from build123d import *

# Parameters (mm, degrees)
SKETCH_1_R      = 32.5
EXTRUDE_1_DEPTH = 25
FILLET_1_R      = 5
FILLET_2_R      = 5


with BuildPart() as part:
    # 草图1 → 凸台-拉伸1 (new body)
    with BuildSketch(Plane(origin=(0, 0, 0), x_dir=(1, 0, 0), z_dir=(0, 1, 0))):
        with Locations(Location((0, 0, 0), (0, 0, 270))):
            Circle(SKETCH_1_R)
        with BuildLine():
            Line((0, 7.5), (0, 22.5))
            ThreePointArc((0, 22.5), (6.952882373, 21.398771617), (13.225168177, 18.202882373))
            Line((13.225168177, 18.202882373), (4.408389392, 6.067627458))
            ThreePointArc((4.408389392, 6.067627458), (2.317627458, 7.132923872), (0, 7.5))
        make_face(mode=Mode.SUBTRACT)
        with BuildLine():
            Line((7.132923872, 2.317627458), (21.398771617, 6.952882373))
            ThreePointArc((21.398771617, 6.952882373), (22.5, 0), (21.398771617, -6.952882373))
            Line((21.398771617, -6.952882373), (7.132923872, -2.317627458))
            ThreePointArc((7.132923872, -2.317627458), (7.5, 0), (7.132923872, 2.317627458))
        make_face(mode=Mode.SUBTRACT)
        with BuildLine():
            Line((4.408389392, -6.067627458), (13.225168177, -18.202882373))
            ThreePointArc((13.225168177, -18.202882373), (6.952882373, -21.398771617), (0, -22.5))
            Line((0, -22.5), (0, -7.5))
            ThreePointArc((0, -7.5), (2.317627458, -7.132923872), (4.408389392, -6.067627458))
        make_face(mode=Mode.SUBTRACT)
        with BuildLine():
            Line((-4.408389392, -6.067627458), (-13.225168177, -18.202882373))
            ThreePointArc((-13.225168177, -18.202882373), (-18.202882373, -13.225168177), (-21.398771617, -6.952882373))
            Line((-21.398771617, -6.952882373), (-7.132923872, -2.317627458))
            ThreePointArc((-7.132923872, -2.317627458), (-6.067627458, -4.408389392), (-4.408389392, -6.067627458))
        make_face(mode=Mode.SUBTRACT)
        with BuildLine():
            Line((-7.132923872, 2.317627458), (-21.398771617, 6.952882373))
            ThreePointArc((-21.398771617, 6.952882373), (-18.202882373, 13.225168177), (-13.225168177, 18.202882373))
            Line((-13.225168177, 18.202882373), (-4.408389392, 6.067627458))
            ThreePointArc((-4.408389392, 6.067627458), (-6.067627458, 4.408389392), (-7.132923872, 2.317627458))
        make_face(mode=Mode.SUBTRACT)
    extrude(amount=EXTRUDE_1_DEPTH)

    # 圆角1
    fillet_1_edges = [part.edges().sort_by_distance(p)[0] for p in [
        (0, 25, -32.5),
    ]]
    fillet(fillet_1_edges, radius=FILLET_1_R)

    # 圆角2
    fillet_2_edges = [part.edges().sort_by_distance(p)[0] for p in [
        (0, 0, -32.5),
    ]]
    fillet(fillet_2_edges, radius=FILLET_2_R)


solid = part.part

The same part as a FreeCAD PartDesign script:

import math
import FreeCAD as App
import Part
import Sketcher
from FreeCAD import Vector
Q = App.Units.Quantity


def edges_at(feature, points):
    """Names of the edges that pass closest to the given points."""
    edges = feature.Shape.Edges
    near = lambda p: min(range(len(edges)), key=lambda i: edges[i].distToShape(Part.Vertex(*p))[0])
    return sorted({f"Edge{near(p) + 1}" for p in points})

doc = App.newDocument("Part")
body = doc.addObject("PartDesign::Body", "Body")

# Sketch on XZ plane
sketch1 = body.newObject("Sketcher::SketchObject", "Sketch")
sketch1.AttachmentSupport = (doc.getObject("XZ_Plane"), [""])
sketch1.MapMode = "FlatFace"
sketch1.addGeometry([
    Part.Circle(Vector(0, 0, 0), Vector(0, 0, 1), 32.5),  # 0
    Part.ArcOfCircle(Part.Circle(Vector(0, 0, 0), Vector(0, 0, 1), 7.5), math.radians(-162), math.radians(-126)),  # 1
    Part.LineSegment(Vector(-7.132924, -2.317627, 0), Vector(-21.398772, -6.952882, 0)),  # 2
    Part.ArcOfCircle(Part.Circle(Vector(0, 0, 0), Vector(0, 0, 1), 22.5), math.radians(-162), math.radians(-126)),  # 3
    Part.LineSegment(Vector(-13.225168, -18.202882, 0), Vector(-4.408389, -6.067627, 0)),  # 4
    Part.ArcOfCircle(Part.Circle(Vector(0, 0, 0), Vector(0, 0, 1), 7.5), math.radians(126), math.radians(162)),  # 5
    Part.LineSegment(Vector(-4.408389, 6.067627, 0), Vector(-13.225168, 18.202882, 0)),  # 6
    Part.ArcOfCircle(Part.Circle(Vector(0, 0, 0), Vector(0, 0, 1), 22.5), math.radians(126), math.radians(162)),  # 7
    Part.LineSegment(Vector(-21.398772, 6.952882, 0), Vector(-7.132924, 2.317627, 0)),  # 8
    Part.ArcOfCircle(Part.Circle(Vector(0, 0, 0), Vector(0, 0, 1), 7.5), math.radians(-90), math.radians(-54)),  # 9
    Part.LineSegment(Vector(0, -7.5, 0), Vector(0, -22.5, 0)),  # 10
    Part.ArcOfCircle(Part.Circle(Vector(0, 0, 0), Vector(0, 0, 1), 22.5), math.radians(-90), math.radians(-54)),  # 11
    Part.LineSegment(Vector(13.225168, -18.202882, 0), Vector(4.408389, -6.067627, 0)),  # 12
    Part.ArcOfCircle(Part.Circle(Vector(0, 0, 0), Vector(0, 0, 1), 7.5), math.radians(-18), math.radians(18)),  # 13
    Part.LineSegment(Vector(7.132924, -2.317627, 0), Vector(21.398772, -6.952882, 0)),  # 14
    Part.ArcOfCircle(Part.Circle(Vector(0, 0, 0), Vector(0, 0, 1), 22.5), math.radians(-18), math.radians(18)),  # 15
    Part.LineSegment(Vector(21.398772, 6.952882, 0), Vector(7.132924, 2.317627, 0)),  # 16
    Part.ArcOfCircle(Part.Circle(Vector(0, 0, 0), Vector(0, 0, 1), 7.5), math.radians(54), math.radians(90)),  # 17
    Part.LineSegment(Vector(4.408389, 6.067627, 0), Vector(13.225168, 18.202882, 0)),  # 18
    Part.ArcOfCircle(Part.Circle(Vector(0, 0, 0), Vector(0, 0, 1), 22.5), math.radians(54), math.radians(90)),  # 19
    Part.LineSegment(Vector(0, 22.5, 0), Vector(0, 7.5, 0)),  # 20
], False)
sketch1.addConstraint([
    Sketcher.Constraint("Coincident", 1, 1, 2, 1),
    Sketcher.Constraint("Coincident", 2, 2, 3, 1),
    Sketcher.Constraint("Coincident", 3, 2, 4, 1),
    Sketcher.Constraint("Coincident", 4, 2, 1, 2),
    Sketcher.Constraint("Coincident", 5, 1, 6, 1),
    Sketcher.Constraint("Coincident", 6, 2, 7, 1),
    Sketcher.Constraint("Coincident", 7, 2, 8, 1),
    Sketcher.Constraint("Coincident", 8, 2, 5, 2),
    Sketcher.Constraint("Coincident", 9, 1, 10, 1),
    Sketcher.Constraint("Coincident", 10, 2, 11, 1),
    Sketcher.Constraint("Coincident", 11, 2, 12, 1),
    Sketcher.Constraint("Coincident", 12, 2, 9, 2),
    Sketcher.Constraint("Coincident", 13, 1, 14, 1),
    Sketcher.Constraint("Coincident", 14, 2, 15, 1),
    Sketcher.Constraint("Coincident", 15, 2, 16, 1),
    Sketcher.Constraint("Coincident", 16, 2, 13, 2),
    Sketcher.Constraint("Coincident", 17, 1, 18, 1),
    Sketcher.Constraint("Coincident", 18, 2, 19, 1),
    Sketcher.Constraint("Coincident", 19, 2, 20, 1),
    Sketcher.Constraint("Coincident", 20, 2, 17, 2),
    Sketcher.Constraint("Vertical", 10),
    Sketcher.Constraint("Vertical", 20),
    Sketcher.Constraint("Coincident", 0, 3, -1, 1),
    Sketcher.Constraint("Coincident", 1, 3, -1, 1),
    Sketcher.Constraint("Coincident", 3, 3, -1, 1),
    Sketcher.Constraint("Coincident", 5, 3, -1, 1),
    Sketcher.Constraint("Coincident", 7, 3, -1, 1),
    Sketcher.Constraint("Coincident", 9, 3, -1, 1),
    Sketcher.Constraint("Coincident", 11, 3, -1, 1),
    Sketcher.Constraint("Coincident", 13, 3, -1, 1),
    Sketcher.Constraint("Coincident", 15, 3, -1, 1),
    Sketcher.Constraint("Coincident", 17, 3, -1, 1),
    Sketcher.Constraint("Coincident", 19, 3, -1, 1),
    Sketcher.Constraint("Equal", 1, 5),
    Sketcher.Constraint("Equal", 3, 7),
    Sketcher.Constraint("Equal", 5, 9),
    Sketcher.Constraint("Equal", 7, 11),
    Sketcher.Constraint("Equal", 9, 13),
    Sketcher.Constraint("Equal", 11, 15),
    Sketcher.Constraint("Equal", 13, 17),
    Sketcher.Constraint("Equal", 15, 19),
    Sketcher.Constraint("PointOnObject", 9, 1, -2),
    Sketcher.Constraint("PointOnObject", 19, 2, -2),
    Sketcher.Constraint("Parallel", 6, 12),
    Sketcher.Constraint("Parallel", 8, 14),
    Sketcher.Constraint("Parallel", 2, 16),
    Sketcher.Constraint("Parallel", 4, 18),
    Sketcher.Constraint("Horizontal", 3, 2, 11, 2),
    Sketcher.Constraint("Horizontal", 4, 2, 12, 2),
    Sketcher.Constraint("Horizontal", 1, 1, 13, 1),
    Sketcher.Constraint("Horizontal", 2, 2, 14, 2),
    Sketcher.Constraint("Horizontal", 7, 2, 15, 2),
    Sketcher.Constraint("Horizontal", 5, 1, 17, 1),
    Sketcher.Constraint("Vertical", 4, 2, 5, 1),
    Sketcher.Constraint("Vertical", 2, 2, 7, 2),
    Sketcher.Constraint("Diameter", 0, Q("65 mm")),
    Sketcher.Constraint("Radius", 1, Q("7.5 mm")),
    Sketcher.Constraint("Radius", 3, Q("22.5 mm")),
    Sketcher.Constraint("Angle", 2, Q("-162 deg")),
    Sketcher.Constraint("Angle", 4, Q("54 deg")),
    Sketcher.Constraint("DistanceY", 3, 2, 2, 2, Q("11.25 mm")),
    Sketcher.Constraint("DistanceX", 2, 2, -1, 1, Q("21.398772 mm")),
])
pad1 = body.newObject("PartDesign::Pad", "Pad")
pad1.Profile = sketch1
pad1.Length = 25
pad1.Reversed = True
doc.recompute()

fillet = body.newObject("PartDesign::Fillet", "Fillet")
fillet.Base = (pad1, edges_at(pad1, [(0, 25, -32.5)]))
fillet.Radius = 5
doc.recompute()

fillet2 = body.newObject("PartDesign::Fillet", "Fillet001")
fillet2.Base = (fillet, edges_at(fillet, [(0, 0, -32.5)]))
fillet2.Radius = 5

doc.recompute()
